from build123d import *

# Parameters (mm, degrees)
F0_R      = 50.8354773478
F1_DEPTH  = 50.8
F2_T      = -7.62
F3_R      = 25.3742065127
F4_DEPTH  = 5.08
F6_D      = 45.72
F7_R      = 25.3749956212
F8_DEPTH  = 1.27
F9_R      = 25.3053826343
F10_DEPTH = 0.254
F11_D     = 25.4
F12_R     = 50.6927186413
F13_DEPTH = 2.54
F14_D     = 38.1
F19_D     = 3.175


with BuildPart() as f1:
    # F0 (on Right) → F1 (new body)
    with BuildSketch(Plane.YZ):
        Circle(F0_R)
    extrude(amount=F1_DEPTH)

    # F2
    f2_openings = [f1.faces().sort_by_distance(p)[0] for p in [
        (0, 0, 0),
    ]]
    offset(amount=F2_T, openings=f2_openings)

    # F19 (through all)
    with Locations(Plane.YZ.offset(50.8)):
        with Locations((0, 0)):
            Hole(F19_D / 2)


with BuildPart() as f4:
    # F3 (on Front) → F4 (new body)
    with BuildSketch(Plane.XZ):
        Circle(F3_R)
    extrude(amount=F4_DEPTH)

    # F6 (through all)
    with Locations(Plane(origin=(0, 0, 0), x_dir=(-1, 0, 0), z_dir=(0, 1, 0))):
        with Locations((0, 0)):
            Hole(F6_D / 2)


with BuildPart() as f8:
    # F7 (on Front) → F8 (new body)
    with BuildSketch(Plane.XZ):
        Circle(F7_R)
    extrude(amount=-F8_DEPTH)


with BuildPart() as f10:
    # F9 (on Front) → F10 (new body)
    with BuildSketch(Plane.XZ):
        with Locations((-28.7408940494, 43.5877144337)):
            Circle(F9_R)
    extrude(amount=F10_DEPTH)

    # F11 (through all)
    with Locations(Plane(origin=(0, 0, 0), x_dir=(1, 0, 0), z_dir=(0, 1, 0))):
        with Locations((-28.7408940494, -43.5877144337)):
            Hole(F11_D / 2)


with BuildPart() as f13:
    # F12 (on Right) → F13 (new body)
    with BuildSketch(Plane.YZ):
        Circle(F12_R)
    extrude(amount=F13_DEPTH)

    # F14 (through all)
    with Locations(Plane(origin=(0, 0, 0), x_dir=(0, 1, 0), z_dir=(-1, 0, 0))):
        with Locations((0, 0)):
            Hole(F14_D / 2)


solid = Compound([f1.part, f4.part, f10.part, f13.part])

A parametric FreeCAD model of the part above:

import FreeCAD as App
import Part
import Sketcher

V = App.Vector
Q = App.Units.Quantity


def faces_at(feature, points):
    """Names of the faces that lie closest to the given points."""
    faces = feature.Shape.Faces
    near = lambda p: min(range(len(faces)), key=lambda i: faces[i].distToShape(Part.Vertex(*p))[0])
    return sorted({f"Face{near(p) + 1}" for p in points})

doc = App.newDocument("Part")
body = doc.addObject("PartDesign::Body", "Body")

sketch1 = doc.addObject("Sketcher::SketchObject", "Sketch")
body.addObject(sketch1)
sketch1.AttachmentSupport = (doc.YZ_Plane, [""])
sketch1.MapMode = "FlatFace"
sketch1.addGeometry(Part.Circle(V(0, 0, 0), V(0, 0, 1), 51), False)
sketch1.addConstraint([
    Sketcher.Constraint("Coincident", 0, 3, -1, 1),
    Sketcher.Constraint("Diameter", 0, 101.670955),
])
pad1 = doc.addObject("PartDesign::Pad", "Pad")
body.addObject(pad1)
pad1.Profile = sketch1
pad1.Length = Q("2 in")
doc.recompute()

thickness = doc.addObject("PartDesign::Thickness", "Thickness")
body.addObject(thickness)
thickness.Base = (pad1, faces_at(pad1, [(0, 0, 0)]))
thickness.Value = Q("0.3 in")
thickness.Reversed = True
thickness.Join = "Arc"

sketch2 = doc.addObject("Sketcher::SketchObject", "Sketch001")
body.addObject(sketch2)
sketch2.AttachmentSupport = (doc.YZ_Plane, [""])
sketch2.MapMode = "FlatFace"
sketch2.AttachmentOffset = App.Placement(V(0, 0, 2 * 25.4), App.Rotation())
sketch2.addGeometry(Part.Circle(V(0, 0, 0), V(0, 0, 1), 1.6), False)
sketch2.addConstraint([
    Sketcher.Constraint("Coincident", 0, 3, -1, 1),
    Sketcher.Constraint("Diameter", 0, Q("0.125 in")),
])
doc.recompute()
hole = doc.addObject("PartDesign::Hole", "Hole")
body.addObject(hole)
hole.Profile = sketch2
hole.ThreadType = "None"
hole.Diameter = Q("0.125 in")
hole.DepthType = "ThroughAll"
body2 = doc.addObject("PartDesign::Body", "Body001")

sketch3 = doc.addObject("Sketcher::SketchObject", "Sketch002")
body2.addObject(sketch3)
sketch3.AttachmentSupport = (doc.getObject("XZ_Plane001"), [""])
sketch3.MapMode = "FlatFace"
sketch3.addGeometry(Part.Circle(V(0, 0, 0), V(0, 0, 1), 25), False)
sketch3.addConstraint([
    Sketcher.Constraint("Coincident", 0, 3, -1, 1),
    Sketcher.Constraint("Diameter", 0, 50.748413),
])
pad2 = doc.addObject("PartDesign::Pad", "Pad001")
body2.addObject(pad2)
pad2.Profile = sketch3
pad2.Length = Q("0.2 in")

sketch4 = doc.addObject("Sketcher::SketchObject", "Sketch003")
body2.addObject(sketch4)
sketch4.AttachmentSupport = (doc.getObject("XZ_Plane001"), [""])
sketch4.MapMode = "FlatFace"
sketch4.addGeometry(Part.Circle(V(0, 0, 0), V(0, 0, 1), 23), False)
sketch4.addConstraint([
    Sketcher.Constraint("Coincident", 0, 3, -1, 1),
    Sketcher.Constraint("Diameter", 0, Q("1.8 in")),
])
doc.recompute()
hole2 = doc.addObject("PartDesign::Hole", "Hole001")
body2.addObject(hole2)
hole2.Profile = sketch4
hole2.ThreadType = "None"
hole2.Diameter = Q("1.8 in")
hole2.DepthType = "ThroughAll"
hole2.Reversed = True
body3 = doc.addObject("PartDesign::Body", "Body002")

sketch5 = doc.addObject("Sketcher::SketchObject", "Sketch004")
body3.addObject(sketch5)
sketch5.AttachmentSupport = (doc.getObject("XZ_Plane002"), [""])
sketch5.MapMode = "FlatFace"
sketch5.addGeometry(Part.Circle(V(0, 0, 0), V(0, 0, 1), 25), False)
sketch5.addConstraint([
    Sketcher.Constraint("Coincident", 0, 3, -1, 1),
    Sketcher.Constraint("Diameter", 0, 50.749991),
])
pad3 = doc.addObject("PartDesign::Pad", "Pad002")
body3.addObject(pad3)
pad3.Profile = sketch5
pad3.Length = Q("0.05 in")
pad3.Reversed = True
body4 = doc.addObject("PartDesign::Body", "Body003")

sketch6 = doc.addObject("Sketcher::SketchObject", "Sketch005")
body4.addObject(sketch6)
sketch6.AttachmentSupport = (doc.getObject("XZ_Plane003"), [""])
sketch6.MapMode = "FlatFace"
sketch6.addGeometry(Part.Circle(V(-29, 44, 0), V(0, 0, 1), 25), False)
sketch6.addConstraint([
    Sketcher.Constraint("Diameter", 0, 50.610765),
    Sketcher.Constraint("DistanceX", 0, 3, -1, 1, 28.740894),
    Sketcher.Constraint("DistanceY", -1, 1, 0, 3, 43.587714),
])
pad4 = doc.addObject("PartDesign::Pad", "Pad003")
body4.addObject(pad4)
pad4.Profile = sketch6
pad4.Length = Q("0.01 in")

sketch7 = doc.addObject("Sketcher::SketchObject", "Sketch006")
body4.addObject(sketch7)
sketch7.AttachmentSupport = (doc.getObject("XZ_Plane003"), [""])
sketch7.MapMode = "FlatFace"
sketch7.addGeometry(Part.Circle(V(-29, 44, 0), V(0, 0, 1), 13), False)
sketch7.addConstraint([
    Sketcher.Constraint("Diameter", 0, Q("1 in")),
    Sketcher.Constraint("DistanceX", 0, 3, -1, 1, 28.740894),
    Sketcher.Constraint("DistanceY", -1, 1, 0, 3, 43.587714),
])
doc.recompute()
hole3 = doc.addObject("PartDesign::Hole", "Hole002")
body4.addObject(hole3)
hole3.Profile = sketch7
hole3.ThreadType = "None"
hole3.Diameter = Q("1 in")
hole3.DepthType = "ThroughAll"
hole3.Reversed = True
body5 = doc.addObject("PartDesign::Body", "Body004")

sketch8 = doc.addObject("Sketcher::SketchObject", "Sketch007")
body5.addObject(sketch8)
sketch8.AttachmentSupport = (doc.getObject("YZ_Plane004"), [""])
sketch8.MapMode = "FlatFace"
sketch8.addGeometry(Part.Circle(V(0, 0, 0), V(0, 0, 1), 51), False)
sketch8.addConstraint([
    Sketcher.Constraint("Coincident", 0, 3, -1, 1),
    Sketcher.Constraint("Diameter", 0, 101.385437),
])
pad5 = doc.addObject("PartDesign::Pad", "Pad004")
body5.addObject(pad5)
pad5.Profile = sketch8
pad5.Length = Q("0.1 in")

sketch9 = doc.addObject("Sketcher::SketchObject", "Sketch008")
body5.addObject(sketch9)
sketch9.AttachmentSupport = (doc.getObject("YZ_Plane004"), [""])
sketch9.MapMode = "FlatFace"
sketch9.addGeometry(Part.Circle(V(0, 0, 0), V(0, 0, 1), 19), False)
sketch9.addConstraint([
    Sketcher.Constraint("Coincident", 0, 3, -1, 1),
    Sketcher.Constraint("Diameter", 0, Q("1.5 in")),
])
doc.recompute()
hole4 = doc.addObject("PartDesign::Hole", "Hole003")
body5.addObject(hole4)
hole4.Profile = sketch9
hole4.ThreadType = "None"
hole4.Diameter = Q("1.5 in")
hole4.DepthType = "ThroughAll"
hole4.Reversed = True
body3.Visibility = False

doc.recompute()
